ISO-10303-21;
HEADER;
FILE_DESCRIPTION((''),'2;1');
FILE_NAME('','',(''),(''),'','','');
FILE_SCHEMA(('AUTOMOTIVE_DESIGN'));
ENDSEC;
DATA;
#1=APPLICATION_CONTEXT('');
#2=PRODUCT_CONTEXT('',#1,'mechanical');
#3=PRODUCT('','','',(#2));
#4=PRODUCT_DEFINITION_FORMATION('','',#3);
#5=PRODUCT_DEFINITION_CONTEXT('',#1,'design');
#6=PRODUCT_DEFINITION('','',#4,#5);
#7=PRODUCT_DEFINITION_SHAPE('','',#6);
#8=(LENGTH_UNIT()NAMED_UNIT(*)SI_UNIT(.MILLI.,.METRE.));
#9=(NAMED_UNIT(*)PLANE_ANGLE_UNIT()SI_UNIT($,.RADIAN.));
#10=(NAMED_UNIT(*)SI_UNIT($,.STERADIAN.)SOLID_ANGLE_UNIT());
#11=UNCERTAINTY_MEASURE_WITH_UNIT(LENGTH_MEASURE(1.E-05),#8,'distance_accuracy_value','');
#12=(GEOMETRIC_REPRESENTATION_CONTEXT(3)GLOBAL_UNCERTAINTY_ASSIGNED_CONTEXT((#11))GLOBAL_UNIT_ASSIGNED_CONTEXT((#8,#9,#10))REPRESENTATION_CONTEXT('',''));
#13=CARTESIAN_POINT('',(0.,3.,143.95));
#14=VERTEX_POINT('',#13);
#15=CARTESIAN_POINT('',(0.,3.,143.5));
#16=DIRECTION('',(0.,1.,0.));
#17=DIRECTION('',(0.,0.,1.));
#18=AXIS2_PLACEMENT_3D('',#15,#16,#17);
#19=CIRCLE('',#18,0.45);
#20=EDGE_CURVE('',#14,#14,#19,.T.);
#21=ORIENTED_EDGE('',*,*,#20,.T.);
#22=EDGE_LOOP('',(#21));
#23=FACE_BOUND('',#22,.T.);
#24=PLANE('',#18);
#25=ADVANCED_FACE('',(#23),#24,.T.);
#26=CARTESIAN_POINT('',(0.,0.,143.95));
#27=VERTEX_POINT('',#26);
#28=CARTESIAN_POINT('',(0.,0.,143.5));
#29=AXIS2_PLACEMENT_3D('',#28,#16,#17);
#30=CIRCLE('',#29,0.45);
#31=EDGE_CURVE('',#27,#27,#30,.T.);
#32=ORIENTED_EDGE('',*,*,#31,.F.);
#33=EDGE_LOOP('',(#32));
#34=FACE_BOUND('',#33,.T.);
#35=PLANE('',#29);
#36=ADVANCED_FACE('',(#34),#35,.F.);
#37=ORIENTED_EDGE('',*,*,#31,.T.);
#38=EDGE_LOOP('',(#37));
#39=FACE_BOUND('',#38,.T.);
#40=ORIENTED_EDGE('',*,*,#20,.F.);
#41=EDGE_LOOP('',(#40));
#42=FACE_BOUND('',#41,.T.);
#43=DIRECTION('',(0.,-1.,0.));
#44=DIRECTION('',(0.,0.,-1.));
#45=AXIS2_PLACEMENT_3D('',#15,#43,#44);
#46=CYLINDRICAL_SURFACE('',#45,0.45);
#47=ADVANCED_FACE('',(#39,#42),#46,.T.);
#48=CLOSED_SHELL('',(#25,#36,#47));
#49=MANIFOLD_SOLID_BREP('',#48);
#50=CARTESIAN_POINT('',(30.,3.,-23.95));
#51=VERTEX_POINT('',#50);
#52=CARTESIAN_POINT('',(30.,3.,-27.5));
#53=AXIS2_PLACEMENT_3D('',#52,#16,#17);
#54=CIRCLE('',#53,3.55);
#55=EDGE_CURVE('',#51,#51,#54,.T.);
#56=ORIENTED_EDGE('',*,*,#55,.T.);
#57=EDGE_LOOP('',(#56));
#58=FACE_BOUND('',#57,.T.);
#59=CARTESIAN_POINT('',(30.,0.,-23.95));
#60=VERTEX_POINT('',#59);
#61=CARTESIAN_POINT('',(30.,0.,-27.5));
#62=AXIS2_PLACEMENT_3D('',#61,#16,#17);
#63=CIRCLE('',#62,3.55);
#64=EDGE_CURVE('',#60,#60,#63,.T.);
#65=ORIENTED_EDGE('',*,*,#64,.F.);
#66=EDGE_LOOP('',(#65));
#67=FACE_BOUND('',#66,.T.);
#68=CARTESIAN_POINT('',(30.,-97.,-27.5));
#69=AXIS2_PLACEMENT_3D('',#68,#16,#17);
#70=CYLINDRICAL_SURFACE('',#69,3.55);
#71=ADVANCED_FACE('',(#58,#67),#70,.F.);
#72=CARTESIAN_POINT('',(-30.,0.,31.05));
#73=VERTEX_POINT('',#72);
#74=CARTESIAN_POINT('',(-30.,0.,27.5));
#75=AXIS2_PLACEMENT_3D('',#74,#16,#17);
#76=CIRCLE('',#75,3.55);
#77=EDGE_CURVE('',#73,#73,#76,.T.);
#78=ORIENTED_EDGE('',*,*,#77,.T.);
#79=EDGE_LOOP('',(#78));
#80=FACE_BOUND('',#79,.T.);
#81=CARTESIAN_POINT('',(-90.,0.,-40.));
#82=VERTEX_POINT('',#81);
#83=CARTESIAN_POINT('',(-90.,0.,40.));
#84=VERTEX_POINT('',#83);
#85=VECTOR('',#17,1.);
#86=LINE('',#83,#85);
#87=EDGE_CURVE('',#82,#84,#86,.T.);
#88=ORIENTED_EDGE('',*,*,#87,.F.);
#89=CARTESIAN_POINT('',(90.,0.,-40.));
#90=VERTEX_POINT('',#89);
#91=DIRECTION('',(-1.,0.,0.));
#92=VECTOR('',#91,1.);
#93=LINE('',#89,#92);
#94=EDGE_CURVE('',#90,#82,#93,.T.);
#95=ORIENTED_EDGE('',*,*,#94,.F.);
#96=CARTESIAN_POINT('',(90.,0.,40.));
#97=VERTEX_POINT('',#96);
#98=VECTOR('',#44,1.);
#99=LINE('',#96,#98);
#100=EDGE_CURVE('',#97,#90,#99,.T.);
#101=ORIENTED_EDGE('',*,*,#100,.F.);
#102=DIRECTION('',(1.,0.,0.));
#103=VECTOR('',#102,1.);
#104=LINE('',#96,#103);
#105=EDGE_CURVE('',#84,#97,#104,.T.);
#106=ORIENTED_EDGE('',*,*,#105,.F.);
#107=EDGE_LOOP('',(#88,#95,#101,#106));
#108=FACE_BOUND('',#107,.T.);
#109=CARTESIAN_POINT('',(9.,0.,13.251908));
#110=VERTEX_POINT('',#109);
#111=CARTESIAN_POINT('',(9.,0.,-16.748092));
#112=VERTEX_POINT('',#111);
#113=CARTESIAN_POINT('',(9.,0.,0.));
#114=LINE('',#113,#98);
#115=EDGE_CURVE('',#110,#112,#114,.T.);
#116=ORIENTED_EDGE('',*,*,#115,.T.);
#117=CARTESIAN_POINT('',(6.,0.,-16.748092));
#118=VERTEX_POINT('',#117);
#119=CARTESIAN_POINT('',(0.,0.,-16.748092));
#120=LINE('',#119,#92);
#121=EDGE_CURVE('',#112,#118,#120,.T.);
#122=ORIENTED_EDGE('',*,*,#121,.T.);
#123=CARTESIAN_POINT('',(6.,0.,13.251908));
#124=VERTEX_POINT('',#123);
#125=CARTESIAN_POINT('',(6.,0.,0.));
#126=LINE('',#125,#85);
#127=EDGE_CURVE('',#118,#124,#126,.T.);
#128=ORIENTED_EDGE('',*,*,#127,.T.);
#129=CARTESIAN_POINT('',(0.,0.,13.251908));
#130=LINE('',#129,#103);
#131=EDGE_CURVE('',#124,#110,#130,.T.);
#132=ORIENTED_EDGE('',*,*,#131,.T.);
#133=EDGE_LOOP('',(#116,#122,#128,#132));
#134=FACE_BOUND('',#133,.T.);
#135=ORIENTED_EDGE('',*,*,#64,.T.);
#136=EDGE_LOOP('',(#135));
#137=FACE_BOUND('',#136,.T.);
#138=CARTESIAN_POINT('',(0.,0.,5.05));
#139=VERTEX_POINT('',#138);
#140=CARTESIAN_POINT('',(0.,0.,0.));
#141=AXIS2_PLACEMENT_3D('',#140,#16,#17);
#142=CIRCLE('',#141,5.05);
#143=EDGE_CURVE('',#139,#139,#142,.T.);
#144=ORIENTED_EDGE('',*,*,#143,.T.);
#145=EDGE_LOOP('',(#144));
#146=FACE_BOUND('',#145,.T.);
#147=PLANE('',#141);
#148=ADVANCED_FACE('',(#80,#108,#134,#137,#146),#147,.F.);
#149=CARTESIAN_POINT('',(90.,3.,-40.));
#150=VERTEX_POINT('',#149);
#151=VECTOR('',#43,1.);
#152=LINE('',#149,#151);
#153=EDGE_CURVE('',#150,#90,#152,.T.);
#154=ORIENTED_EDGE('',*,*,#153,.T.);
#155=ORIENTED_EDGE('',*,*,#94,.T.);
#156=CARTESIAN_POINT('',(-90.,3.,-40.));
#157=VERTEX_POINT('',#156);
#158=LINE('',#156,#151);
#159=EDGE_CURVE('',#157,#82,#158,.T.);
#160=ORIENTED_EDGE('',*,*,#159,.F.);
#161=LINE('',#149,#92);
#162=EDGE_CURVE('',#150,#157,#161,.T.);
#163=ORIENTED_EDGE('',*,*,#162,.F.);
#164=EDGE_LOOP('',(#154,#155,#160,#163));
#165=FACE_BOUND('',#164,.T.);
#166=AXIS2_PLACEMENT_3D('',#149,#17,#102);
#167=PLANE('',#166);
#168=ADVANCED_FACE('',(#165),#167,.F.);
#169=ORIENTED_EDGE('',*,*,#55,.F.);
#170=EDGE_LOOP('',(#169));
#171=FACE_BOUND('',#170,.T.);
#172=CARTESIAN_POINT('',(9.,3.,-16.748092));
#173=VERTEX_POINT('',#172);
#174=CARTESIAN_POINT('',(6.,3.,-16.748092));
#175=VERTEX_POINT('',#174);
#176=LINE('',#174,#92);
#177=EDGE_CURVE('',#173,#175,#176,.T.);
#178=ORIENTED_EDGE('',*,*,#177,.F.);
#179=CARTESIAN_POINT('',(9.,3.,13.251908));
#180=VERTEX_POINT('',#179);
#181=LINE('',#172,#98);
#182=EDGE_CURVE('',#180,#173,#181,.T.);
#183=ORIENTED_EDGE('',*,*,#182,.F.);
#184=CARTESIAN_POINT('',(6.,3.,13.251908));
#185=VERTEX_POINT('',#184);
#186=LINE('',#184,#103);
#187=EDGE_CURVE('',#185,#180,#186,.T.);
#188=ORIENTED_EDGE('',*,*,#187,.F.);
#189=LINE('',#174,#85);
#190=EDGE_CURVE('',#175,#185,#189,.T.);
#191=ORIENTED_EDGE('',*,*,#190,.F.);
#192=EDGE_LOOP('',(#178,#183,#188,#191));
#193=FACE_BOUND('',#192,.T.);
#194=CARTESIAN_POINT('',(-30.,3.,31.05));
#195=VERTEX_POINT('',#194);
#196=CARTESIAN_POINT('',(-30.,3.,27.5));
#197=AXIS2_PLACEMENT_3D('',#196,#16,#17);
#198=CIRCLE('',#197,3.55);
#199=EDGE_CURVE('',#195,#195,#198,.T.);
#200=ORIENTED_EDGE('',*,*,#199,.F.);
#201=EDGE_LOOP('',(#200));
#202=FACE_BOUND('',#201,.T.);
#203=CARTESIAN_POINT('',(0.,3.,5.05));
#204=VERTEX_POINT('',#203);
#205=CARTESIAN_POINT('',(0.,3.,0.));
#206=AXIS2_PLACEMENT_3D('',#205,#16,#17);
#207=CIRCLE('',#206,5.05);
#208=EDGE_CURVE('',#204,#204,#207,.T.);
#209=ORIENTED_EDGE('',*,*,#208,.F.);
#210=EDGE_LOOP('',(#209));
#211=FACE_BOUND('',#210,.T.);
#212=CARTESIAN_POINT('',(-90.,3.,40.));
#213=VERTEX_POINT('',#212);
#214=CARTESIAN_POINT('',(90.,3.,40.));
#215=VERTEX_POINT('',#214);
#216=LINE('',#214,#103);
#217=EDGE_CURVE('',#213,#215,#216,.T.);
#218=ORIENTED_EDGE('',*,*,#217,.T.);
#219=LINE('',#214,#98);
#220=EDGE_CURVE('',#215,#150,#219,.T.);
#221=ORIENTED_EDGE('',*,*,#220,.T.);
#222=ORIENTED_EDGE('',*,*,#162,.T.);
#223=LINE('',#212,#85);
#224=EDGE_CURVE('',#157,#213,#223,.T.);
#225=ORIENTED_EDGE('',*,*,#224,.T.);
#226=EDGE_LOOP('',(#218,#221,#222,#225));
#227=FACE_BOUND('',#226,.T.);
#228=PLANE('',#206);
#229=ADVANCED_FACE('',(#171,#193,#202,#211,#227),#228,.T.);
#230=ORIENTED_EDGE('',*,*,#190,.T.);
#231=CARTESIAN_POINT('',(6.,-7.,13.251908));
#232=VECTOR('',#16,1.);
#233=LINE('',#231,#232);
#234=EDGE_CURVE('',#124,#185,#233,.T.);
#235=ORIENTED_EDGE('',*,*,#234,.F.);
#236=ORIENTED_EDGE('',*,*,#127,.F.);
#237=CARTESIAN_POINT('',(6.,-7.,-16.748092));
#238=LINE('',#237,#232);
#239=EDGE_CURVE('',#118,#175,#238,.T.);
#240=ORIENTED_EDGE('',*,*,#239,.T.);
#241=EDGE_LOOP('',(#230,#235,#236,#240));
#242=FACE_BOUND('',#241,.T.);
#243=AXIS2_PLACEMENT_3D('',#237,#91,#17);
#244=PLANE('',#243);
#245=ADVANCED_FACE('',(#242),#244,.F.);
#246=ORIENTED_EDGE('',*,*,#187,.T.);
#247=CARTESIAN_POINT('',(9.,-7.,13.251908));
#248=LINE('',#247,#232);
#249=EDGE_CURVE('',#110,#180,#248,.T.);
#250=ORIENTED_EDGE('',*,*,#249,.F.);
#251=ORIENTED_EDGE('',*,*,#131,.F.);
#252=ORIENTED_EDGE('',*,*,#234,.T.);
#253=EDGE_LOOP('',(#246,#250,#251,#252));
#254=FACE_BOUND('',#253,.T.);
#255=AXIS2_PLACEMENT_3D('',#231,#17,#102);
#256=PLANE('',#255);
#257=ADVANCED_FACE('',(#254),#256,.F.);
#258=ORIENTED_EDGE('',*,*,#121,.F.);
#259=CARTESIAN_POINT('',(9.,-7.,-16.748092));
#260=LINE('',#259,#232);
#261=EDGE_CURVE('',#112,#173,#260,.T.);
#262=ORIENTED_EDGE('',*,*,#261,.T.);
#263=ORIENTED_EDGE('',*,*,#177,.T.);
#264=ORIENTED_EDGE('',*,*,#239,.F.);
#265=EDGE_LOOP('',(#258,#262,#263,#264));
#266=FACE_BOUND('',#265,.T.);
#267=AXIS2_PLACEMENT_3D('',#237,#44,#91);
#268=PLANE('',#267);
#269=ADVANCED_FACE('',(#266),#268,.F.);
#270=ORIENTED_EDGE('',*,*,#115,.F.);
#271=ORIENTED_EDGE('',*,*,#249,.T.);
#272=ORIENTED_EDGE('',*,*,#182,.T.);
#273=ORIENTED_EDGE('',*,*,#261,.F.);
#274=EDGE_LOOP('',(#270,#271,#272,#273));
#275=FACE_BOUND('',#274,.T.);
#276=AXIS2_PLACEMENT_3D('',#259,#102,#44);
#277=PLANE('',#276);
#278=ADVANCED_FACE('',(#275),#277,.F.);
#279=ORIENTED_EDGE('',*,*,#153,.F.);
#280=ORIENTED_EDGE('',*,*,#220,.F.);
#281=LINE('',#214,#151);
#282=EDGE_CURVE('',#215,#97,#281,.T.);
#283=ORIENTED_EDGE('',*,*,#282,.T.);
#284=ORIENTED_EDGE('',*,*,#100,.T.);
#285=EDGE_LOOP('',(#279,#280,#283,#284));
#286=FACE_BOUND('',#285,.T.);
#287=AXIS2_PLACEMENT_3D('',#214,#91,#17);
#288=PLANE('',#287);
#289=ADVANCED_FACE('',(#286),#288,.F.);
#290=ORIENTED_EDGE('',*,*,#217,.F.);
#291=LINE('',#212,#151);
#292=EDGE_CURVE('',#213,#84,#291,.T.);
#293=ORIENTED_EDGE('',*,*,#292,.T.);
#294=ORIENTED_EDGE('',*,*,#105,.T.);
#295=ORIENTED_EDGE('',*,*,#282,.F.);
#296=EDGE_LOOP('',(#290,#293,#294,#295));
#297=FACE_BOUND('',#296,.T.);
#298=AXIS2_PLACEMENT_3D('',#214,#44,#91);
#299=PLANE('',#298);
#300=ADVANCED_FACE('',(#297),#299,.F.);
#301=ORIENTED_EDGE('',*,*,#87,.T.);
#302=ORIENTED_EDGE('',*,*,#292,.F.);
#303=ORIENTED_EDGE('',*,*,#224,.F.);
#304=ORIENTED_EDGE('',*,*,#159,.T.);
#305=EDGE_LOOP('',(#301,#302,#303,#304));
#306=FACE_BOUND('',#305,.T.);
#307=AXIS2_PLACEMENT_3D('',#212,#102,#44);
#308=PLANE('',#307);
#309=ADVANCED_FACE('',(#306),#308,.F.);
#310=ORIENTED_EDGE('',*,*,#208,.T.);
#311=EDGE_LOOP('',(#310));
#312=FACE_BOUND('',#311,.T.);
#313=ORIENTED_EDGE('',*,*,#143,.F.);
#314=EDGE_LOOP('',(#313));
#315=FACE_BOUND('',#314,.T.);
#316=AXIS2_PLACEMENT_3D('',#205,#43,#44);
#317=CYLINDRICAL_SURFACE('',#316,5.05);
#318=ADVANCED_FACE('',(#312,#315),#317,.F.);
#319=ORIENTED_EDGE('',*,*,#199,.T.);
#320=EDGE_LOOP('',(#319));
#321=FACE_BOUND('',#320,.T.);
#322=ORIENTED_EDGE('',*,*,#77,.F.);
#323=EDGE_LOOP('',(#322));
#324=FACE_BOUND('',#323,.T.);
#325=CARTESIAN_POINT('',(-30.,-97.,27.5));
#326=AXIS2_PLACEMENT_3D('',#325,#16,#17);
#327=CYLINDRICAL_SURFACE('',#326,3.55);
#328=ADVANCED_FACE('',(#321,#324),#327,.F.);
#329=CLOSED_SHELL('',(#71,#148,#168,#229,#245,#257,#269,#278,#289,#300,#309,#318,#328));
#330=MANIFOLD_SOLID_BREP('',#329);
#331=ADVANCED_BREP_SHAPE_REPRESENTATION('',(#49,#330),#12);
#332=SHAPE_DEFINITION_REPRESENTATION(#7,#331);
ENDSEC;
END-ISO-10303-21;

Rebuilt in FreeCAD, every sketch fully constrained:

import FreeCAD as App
import Part
import Sketcher

V = App.Vector
Q = App.Units.Quantity


def add_polygon(sketch, points):
    """Adds a closed chain of lines whose ends are joined by coincident constraints."""
    first, n = sketch.GeometryCount, len(points)
    for a, b in zip(points, points[1:] + points[:1]):
        sketch.addGeometry(Part.LineSegment(App.Vector(*a, 0), App.Vector(*b, 0)), False)
    for i in range(n):
        sketch.addConstraint(Sketcher.Constraint("Coincident", first + i, 2, first + (i + 1) % n, 1))

doc = App.newDocument("Part")
body = doc.addObject("PartDesign::Body", "Body")

# Sketch on XZ plane
sketch1 = body.newObject("Sketcher::SketchObject", "Sketch")
sketch1.AttachmentSupport = (doc.getObject("XZ_Plane"), [""])
sketch1.MapMode = "FlatFace"
sketch1.addGeometry(Part.Circle(V(0, 143.5, 0), V(0, 0, 1), 0.45), False)
sketch1.addConstraint([
    Sketcher.Constraint("PointOnObject", 0, 3, -2),
    Sketcher.Constraint("Diameter", 0, Q("0.9 mm")),
    Sketcher.Constraint("DistanceY", -1, 1, 0, 3, Q("143.5 mm")),
])
pad1 = body.newObject("PartDesign::Pad", "Pad")
pad1.Profile = sketch1
pad1.Length = 3
pad1.Reversed = True
body2 = doc.addObject("PartDesign::Body", "Body001")

# Sketch on XZ plane
sketch2 = body2.newObject("Sketcher::SketchObject", "Sketch001")
sketch2.AttachmentSupport = (doc.getObject("XZ_Plane001"), [""])
sketch2.MapMode = "FlatFace"
add_polygon(sketch2, [(-90, -40), (-90, 40), (90, 40), (90, -40)])  # lines 0-3
sketch2.addGeometry(Part.Circle(V(0, 0, 0), V(0, 0, 1), 5.05), False)  # 4
sketch2.addConstraint([
    Sketcher.Constraint("Vertical", 0),
    Sketcher.Constraint("Horizontal", 1),
    Sketcher.Constraint("Vertical", 2),
    Sketcher.Constraint("Horizontal", 3),
    Sketcher.Constraint("Coincident", 4, 3, -1, 1),
    Sketcher.Constraint("Symmetric", 0, 2, 2, 2, -1, 1),
    Sketcher.Constraint("Diameter", 4, Q("10.1 mm")),
    Sketcher.Constraint("DistanceX", 1, 1, 1, 2, Q("180 mm")),
    Sketcher.Constraint("DistanceY", 0, 1, 0, 2, Q("80 mm")),
])
pad2 = body2.newObject("PartDesign::Pad", "Pad001")
pad2.Profile = sketch2
pad2.Length = 3
pad2.Reversed = True

# Sketch on XZ plane
sketch3 = body2.newObject("Sketcher::SketchObject", "Sketch002")
sketch3.AttachmentSupport = (doc.getObject("XZ_Plane001"), [""])
sketch3.MapMode = "FlatFace"
sketch3.AttachmentOffset = App.Placement(V(0, 0, -3), App.Rotation())
sketch3.addGeometry([
    Part.Circle(V(30, -27.5, 0), V(0, 0, 1), 3.55),
    Part.Circle(V(-30, 27.5, 0), V(0, 0, 1), 3.55),
], False)
sketch3.addConstraint([
    Sketcher.Constraint("Equal", 0, 1),
    Sketcher.Constraint("Symmetric", 0, 3, 1, 3, -1, 1),
    Sketcher.Constraint("Diameter", 0, Q("7.1 mm")),
    Sketcher.Constraint("DistanceX", -1, 1, 0, 3, Q("30 mm")),
    Sketcher.Constraint("DistanceY", 0, 3, 1, 3, Q("55 mm")),
])
pocket1 = body2.newObject("PartDesign::Pocket", "Pocket")
pocket1.Profile = sketch3
pocket1.Length = 100
pocket1.Reversed = True

# Sketch on XZ plane
sketch4 = body2.newObject("Sketcher::SketchObject", "Sketch003")
sketch4.AttachmentSupport = (doc.getObject("XZ_Plane001"), [""])
sketch4.MapMode = "FlatFace"
sketch4.AttachmentOffset = App.Placement(V(0, 0, -3), App.Rotation())
add_polygon(sketch4, [(6, -16.748092), (6, 13.251908), (9, 13.251908), (9, -16.748092)])  # lines 0-3
sketch4.addConstraint([
    Sketcher.Constraint("Vertical", 0),
    Sketcher.Constraint("Horizontal", 1),
    Sketcher.Constraint("Vertical", 2),
    Sketcher.Constraint("Horizontal", 3),
    Sketcher.Constraint("DistanceX", 1, 1, 1, 2, Q("3 mm")),
    Sketcher.Constraint("DistanceY", 0, 1, 0, 2, Q("30 mm")),
    Sketcher.Constraint("DistanceX", -1, 1, 0, 2, Q("6 mm")),
    Sketcher.Constraint("DistanceY", -1, 1, 0, 2, Q("13.251908 mm")),
])
pocket2 = body2.newObject("PartDesign::Pocket", "Pocket001")
pocket2.Profile = sketch4
pocket2.Length = 10
pocket2.Reversed = True

doc.recompute()
